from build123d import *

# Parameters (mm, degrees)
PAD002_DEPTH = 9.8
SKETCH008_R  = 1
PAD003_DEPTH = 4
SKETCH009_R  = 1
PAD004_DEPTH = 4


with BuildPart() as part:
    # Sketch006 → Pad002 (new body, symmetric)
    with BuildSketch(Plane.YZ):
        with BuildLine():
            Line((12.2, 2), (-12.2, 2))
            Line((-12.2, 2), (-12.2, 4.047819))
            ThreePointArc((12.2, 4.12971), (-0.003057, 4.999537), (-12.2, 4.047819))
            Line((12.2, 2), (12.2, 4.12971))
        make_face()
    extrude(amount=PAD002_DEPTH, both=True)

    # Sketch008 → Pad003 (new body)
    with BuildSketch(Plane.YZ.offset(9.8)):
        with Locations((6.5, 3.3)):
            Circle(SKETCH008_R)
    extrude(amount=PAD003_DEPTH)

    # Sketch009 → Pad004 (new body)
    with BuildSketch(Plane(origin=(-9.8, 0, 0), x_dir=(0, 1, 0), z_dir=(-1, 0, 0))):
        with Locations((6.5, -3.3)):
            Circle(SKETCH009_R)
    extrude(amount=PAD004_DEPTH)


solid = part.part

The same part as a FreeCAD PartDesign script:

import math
import FreeCAD as App
import Part
import Sketcher
Q = App.Units.Quantity

doc = App.newDocument("Part")
body = doc.addObject("PartDesign::Body", "Body")

# Sketch on YZ plane
sketch1 = body.newObject("Sketcher::SketchObject", "Sketch")
sketch1.AttachmentSupport = (doc.getObject("YZ_Plane"), [""])
sketch1.MapMode = "FlatFace"
sketch1.addGeometry(Part.LineSegment(App.Vector(-12.2, 2, 0), App.Vector(12.2, 2, 0)), False)
sketch1.addGeometry(Part.LineSegment(App.Vector(12.2, 2, 0), App.Vector(12.2, 4.1, 0)), False)
sketch1.addGeometry(Part.ArcOfCircle(Part.Circle(App.Vector(0.3, -77.2, 0), App.Vector(0, 0, 1), 82.2), math.radians(81.65), math.radians(98.73)), False)
sketch1.addGeometry(Part.LineSegment(App.Vector(-12.2, 4, 0), App.Vector(-12.2, 2, 0)), False)
sketch1.addConstraint(Sketcher.Constraint("Coincident", 0, 2, 1, 1))
sketch1.addConstraint(Sketcher.Constraint("Coincident", 1, 2, 2, 1))
sketch1.addConstraint(Sketcher.Constraint("Coincident", 2, 2, 3, 1))
sketch1.addConstraint(Sketcher.Constraint("Coincident", 3, 2, 0, 1))
sketch1.addConstraint(Sketcher.Constraint("Horizontal", 0))
sketch1.addConstraint(Sketcher.Constraint("Vertical", 1))
sketch1.addConstraint(Sketcher.Constraint("Vertical", 3))
sketch1.addConstraint(Sketcher.Constraint("DistanceX", 0, 1, 0, 2, Q("24.4 mm")))
sketch1.addConstraint(Sketcher.Constraint("DistanceY", -1, 1, 0, 2, Q("2 mm")))
sketch1.addConstraint(Sketcher.Constraint("DistanceX", -1, 1, 0, 2, Q("12.2 mm")))
sketch1.addConstraint(Sketcher.Constraint("Radius", 2, Q("82.166704 mm")))
sketch1.addConstraint(Sketcher.Constraint("DistanceY", 1, 1, 1, 2, Q("2.12971 mm")))
sketch1.addConstraint(Sketcher.Constraint("DistanceY", 3, 2, 3, 1, Q("2.047819 mm")))
pad1 = body.newObject("PartDesign::Pad", "Pad")
pad1.Profile = sketch1
pad1.Length = 19.6
pad1.Midplane = True

# Sketch on YZ plane
sketch2 = body.newObject("Sketcher::SketchObject", "Sketch001")
sketch2.AttachmentSupport = (doc.getObject("YZ_Plane"), [""])
sketch2.MapMode = "FlatFace"
sketch2.AttachmentOffset = App.Placement(App.Vector(0, 0, 9.8), App.Rotation())
sketch2.addGeometry(Part.Circle(App.Vector(6.5, 3.3, 0), App.Vector(0, 0, 1), 1), False)
sketch2.addConstraint(Sketcher.Constraint("Diameter", 0, Q("2 mm")))
sketch2.addConstraint(Sketcher.Constraint("DistanceX", -1, 1, 0, 3, Q("6.5 mm")))
sketch2.addConstraint(Sketcher.Constraint("DistanceY", -1, 1, 0, 3, Q("3.3 mm")))
pad2 = body.newObject("PartDesign::Pad", "Pad001")
pad2.Profile = sketch2
pad2.Length = 4

# Sketch on YZ plane
sketch3 = body.newObject("Sketcher::SketchObject", "Sketch002")
sketch3.AttachmentSupport = (doc.getObject("YZ_Plane"), [""])
sketch3.MapMode = "FlatFace"
sketch3.AttachmentOffset = App.Placement(App.Vector(0, 0, -9.8), App.Rotation())
sketch3.addGeometry(Part.Circle(App.Vector(6.5, 3.3, 0), App.Vector(0, 0, 1), 1), False)
sketch3.addConstraint(Sketcher.Constraint("Diameter", 0, Q("2 mm")))
sketch3.addConstraint(Sketcher.Constraint("DistanceX", -1, 1, 0, 3, Q("6.5 mm")))
sketch3.addConstraint(Sketcher.Constraint("DistanceY", -1, 1, 0, 3, Q("3.3 mm")))
pad3 = body.newObject("PartDesign::Pad", "Pad002")
pad3.Profile = sketch3
pad3.Length = 4
pad3.Reversed = True

doc.recompute()
